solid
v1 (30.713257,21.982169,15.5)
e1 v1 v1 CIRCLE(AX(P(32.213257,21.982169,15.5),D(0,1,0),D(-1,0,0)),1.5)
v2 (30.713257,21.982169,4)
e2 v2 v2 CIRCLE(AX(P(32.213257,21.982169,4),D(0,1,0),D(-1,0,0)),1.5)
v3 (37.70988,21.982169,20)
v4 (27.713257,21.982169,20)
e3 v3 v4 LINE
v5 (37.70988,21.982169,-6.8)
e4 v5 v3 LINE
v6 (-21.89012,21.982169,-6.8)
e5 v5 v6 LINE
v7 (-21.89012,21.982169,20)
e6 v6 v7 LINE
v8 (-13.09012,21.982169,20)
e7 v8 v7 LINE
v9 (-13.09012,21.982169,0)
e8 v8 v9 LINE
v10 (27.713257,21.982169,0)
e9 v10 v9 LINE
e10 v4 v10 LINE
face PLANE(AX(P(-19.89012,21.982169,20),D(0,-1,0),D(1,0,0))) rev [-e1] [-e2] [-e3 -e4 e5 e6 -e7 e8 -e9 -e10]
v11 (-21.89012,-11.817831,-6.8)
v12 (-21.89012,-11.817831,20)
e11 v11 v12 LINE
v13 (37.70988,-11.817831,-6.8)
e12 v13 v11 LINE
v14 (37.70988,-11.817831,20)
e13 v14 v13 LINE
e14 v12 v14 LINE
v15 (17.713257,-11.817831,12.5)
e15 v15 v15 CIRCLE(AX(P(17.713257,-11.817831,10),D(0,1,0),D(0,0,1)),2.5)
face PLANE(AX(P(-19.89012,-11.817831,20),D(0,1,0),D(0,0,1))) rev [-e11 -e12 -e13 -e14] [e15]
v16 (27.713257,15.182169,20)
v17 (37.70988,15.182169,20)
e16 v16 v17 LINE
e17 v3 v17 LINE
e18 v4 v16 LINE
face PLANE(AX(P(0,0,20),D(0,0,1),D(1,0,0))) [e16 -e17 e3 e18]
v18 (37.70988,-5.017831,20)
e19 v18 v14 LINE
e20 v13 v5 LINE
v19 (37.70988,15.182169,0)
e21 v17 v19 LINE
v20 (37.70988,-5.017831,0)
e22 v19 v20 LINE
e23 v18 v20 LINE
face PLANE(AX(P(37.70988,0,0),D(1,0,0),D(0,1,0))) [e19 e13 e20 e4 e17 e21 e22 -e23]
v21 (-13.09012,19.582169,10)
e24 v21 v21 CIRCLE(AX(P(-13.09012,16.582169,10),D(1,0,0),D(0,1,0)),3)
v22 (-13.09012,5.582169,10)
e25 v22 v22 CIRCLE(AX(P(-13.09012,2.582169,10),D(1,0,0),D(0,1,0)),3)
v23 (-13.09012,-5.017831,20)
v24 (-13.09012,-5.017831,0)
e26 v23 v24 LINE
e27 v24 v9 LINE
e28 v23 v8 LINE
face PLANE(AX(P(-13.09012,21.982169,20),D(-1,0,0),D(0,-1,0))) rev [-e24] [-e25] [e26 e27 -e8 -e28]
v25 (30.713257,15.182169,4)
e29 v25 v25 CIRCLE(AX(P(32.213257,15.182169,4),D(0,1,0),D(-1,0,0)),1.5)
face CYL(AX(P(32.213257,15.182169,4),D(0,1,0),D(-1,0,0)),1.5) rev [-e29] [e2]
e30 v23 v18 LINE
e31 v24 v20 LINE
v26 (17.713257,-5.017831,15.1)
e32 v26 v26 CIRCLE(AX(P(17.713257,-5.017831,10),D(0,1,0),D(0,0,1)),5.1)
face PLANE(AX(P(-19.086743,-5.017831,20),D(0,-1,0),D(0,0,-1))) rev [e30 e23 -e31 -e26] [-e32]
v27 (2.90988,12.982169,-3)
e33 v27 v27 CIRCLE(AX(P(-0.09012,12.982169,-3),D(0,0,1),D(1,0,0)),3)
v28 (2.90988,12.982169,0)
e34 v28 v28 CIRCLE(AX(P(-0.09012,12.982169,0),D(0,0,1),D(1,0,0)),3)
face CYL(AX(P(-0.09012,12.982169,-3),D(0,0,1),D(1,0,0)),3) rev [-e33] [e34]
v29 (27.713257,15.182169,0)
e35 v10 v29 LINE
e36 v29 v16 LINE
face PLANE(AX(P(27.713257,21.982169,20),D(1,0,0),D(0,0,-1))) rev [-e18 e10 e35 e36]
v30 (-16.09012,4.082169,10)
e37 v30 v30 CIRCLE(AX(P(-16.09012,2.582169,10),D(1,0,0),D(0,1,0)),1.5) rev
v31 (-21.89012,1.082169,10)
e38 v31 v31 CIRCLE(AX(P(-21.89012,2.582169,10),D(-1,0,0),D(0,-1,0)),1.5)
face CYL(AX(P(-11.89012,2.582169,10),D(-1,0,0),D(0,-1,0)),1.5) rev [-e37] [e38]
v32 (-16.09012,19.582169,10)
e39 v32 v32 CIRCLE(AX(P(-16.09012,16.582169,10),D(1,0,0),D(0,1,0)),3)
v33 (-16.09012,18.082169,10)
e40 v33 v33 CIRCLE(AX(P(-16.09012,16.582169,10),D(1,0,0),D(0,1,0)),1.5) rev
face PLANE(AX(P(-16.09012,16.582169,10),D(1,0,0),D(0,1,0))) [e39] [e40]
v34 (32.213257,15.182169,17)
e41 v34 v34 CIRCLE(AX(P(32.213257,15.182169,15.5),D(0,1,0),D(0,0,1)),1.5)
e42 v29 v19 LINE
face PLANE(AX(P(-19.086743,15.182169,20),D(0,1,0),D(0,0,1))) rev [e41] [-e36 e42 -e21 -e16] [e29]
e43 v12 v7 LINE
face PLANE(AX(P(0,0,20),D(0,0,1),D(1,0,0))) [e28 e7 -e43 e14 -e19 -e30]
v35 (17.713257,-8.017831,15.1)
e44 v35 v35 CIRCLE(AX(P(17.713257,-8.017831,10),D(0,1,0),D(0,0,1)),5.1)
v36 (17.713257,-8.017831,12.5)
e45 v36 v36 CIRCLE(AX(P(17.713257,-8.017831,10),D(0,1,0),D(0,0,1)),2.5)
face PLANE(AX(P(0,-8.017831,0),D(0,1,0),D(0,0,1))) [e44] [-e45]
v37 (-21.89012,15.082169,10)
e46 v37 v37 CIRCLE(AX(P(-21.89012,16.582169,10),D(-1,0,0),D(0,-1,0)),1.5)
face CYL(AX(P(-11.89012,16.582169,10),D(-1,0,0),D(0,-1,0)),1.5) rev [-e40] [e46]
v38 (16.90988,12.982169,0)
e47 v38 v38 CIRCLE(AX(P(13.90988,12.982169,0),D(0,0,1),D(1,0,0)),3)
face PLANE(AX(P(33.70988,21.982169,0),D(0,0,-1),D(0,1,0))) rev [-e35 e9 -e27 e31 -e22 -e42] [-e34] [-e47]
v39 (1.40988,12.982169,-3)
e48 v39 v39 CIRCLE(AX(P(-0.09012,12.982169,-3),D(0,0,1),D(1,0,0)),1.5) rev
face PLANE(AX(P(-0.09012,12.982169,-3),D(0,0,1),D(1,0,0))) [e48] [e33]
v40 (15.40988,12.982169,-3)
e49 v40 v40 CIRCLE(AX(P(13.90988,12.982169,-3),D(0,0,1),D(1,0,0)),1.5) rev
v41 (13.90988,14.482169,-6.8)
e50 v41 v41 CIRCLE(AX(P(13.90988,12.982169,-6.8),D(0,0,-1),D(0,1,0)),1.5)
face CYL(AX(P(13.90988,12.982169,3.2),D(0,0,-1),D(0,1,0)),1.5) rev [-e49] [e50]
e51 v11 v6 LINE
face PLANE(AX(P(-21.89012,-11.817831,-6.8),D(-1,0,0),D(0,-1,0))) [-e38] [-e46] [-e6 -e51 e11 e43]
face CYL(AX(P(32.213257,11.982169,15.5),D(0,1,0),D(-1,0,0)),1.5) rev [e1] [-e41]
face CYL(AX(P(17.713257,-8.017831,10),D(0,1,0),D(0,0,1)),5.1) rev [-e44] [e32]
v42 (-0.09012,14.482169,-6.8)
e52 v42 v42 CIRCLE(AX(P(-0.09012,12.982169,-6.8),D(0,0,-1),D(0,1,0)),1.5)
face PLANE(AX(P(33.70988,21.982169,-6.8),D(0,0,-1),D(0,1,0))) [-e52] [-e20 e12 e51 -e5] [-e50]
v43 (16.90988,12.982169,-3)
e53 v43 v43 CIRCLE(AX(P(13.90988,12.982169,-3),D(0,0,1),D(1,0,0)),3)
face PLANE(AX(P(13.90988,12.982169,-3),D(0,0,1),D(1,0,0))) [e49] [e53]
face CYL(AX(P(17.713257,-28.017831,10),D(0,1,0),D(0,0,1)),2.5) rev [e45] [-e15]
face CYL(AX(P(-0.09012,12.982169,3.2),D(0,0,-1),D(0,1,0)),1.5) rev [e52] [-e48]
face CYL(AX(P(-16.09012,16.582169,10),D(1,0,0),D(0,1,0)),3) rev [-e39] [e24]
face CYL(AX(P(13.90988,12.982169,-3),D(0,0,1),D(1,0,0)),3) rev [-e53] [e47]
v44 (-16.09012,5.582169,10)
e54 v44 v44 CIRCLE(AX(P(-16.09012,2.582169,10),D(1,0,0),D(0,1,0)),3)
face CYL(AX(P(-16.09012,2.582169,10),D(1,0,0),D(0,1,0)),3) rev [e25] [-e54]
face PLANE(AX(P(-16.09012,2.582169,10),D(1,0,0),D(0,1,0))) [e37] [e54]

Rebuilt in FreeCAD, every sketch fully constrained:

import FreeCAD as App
import Part
import Sketcher
from FreeCAD import Vector

doc = App.newDocument("Part")
params = doc.addObject("Spreadsheet::Sheet", "Params")
for row, (alias, value) in enumerate([
    ("sketch1_width", "6.8 mm"),
    ("sketch1_height", "33.8 mm"),
    ("sketch1_height2", "26.85 mm"),
    ("pad1_length", "20 mm"),
    ("sketch2_width", "33.8 mm"),
    ("sketch2_height", "6.8 mm"),
    ("pad2_length", "53.6 mm"),
    ("sketch3_height", "20 mm"),
    ("sketch3_width", "20.2 mm"),
    ("pocket1_length", "53.6 mm"),
    ("sketch4_diameter", "10 mm"),
    ("pocket2_length", "3 mm"),
    ("sketch5_diameter", "5 mm"),
    ("pocket3_length", "20 mm"),
    ("sketch6_diameter", "2.2 mm"),
    ("pocket4_length", "20 mm"),
    ("sketch7_width", "2 mm"),
    ("sketch7_height", "26.8 mm"),
    ("pad3_length", "33.8 mm"),
    ("sketch8_diameter", "2.2 mm"),
    ("pocket5_length", "20 mm"),
    ("sketch9_width", "2 mm"),
    ("sketch9_height", "26.8 mm"),
    ("pad4_length", "33.8 mm"),
    ("sketch10_height", "20 mm"),
    ("sketch10_width", "20.2 mm"),
    ("pocket6_length", "60 mm"),
    ("sketch11_height", "20 mm"),
    ("sketch11_width", "20.2 mm"),
    ("pocket7_length", "60 mm"),
    ("sketch12_width", "8.8 mm"),
    ("sketch12_height", "20.2 mm"),
    ("pad5_length", "20 mm"),
    ("sketch13_diameter", "2.2 mm"),
    ("pad6_length", "13.6 mm"),
    ("sketch14_diameter", "2.2 mm"),
    ("pad7_length", "13.6 mm"),
    ("pad8_length", "6.8 mm"),
    ("sketch16_diameter", "2.2 mm"),
    ("pad9_length", "6.8 mm"),
    ("sketch17_diameter", "3 mm"),
    ("pocket8_length", "10 mm"),
    ("sketch18_diameter", "3 mm"),
    ("pocket9_length", "10 mm"),
    ("sketch19_diameter", "3 mm"),
    ("pocket10_length", "10 mm"),
    ("sketch20_diameter", "6 mm"),
    ("pocket11_length", "3 mm"),
    ("sketch21_diameter", "6 mm"),
    ("pocket12_length", "3 mm"),
    ("sketch22_diameter", "10.2 mm"),
    ("pocket13_length", "3 mm"),
    ("sketch23_height", "20 mm"),
    ("sketch23_width", "6.8 mm"),
    ("sketch23_width2", "20.2 mm"),
    ("sketch23_height2", "26.8 mm"),
    ("pad10_length", "2 mm"),
    ("sketch24_diameter", "5 mm"),
    ("pad11_length", "6.8 mm"),
    ("sketch25_diameter", "3 mm"),
    ("pocket14_length", "6.8 mm"),
], start=1):
    params.set(f"A{row}", alias)
    params.set(f"B{row}", "=" + value)
    params.setAlias(f"B{row}", alias)

body = doc.addObject("PartDesign::Body", "Body")

# Sketch on XY plane
sketch1 = doc.addObject("Sketcher::SketchObject", "Sketch")
body.addObject(sketch1)
sketch1.AttachmentSupport = (doc.XY_Plane, [""])
sketch1.MapMode = "FlatFace"
sketch1.addGeometry([
    Part.LineSegment(Vector(28, -5, 0), Vector(-13, -5, 0)),  # 0
    Part.LineSegment(Vector(-13, -5, 0), Vector(-13, 22, 0)),  # 1
    Part.LineSegment(Vector(-13, 22, 0), Vector(-20, 22, 0)),  # 2
    Part.LineSegment(Vector(-20, 22, 0), Vector(-20, -12, 0)),  # 3
    Part.LineSegment(Vector(-20, -12, 0), Vector(35, -12, 0)),  # 4
    Part.LineSegment(Vector(35, -12, 0), Vector(35, 22, 0)),  # 5
    Part.LineSegment(Vector(35, 22, 0), Vector(28, 22, 0)),  # 6
    Part.LineSegment(Vector(28, 22, 0), Vector(28, -5, 0)),  # 7
], False)
sketch1.addConstraint([
    Sketcher.Constraint("Coincident", 0, 2, 1, 1),
    Sketcher.Constraint("Coincident", 1, 2, 2, 1),
    Sketcher.Constraint("Coincident", 2, 2, 3, 1),
    Sketcher.Constraint("Coincident", 3, 2, 4, 1),
    Sketcher.Constraint("Coincident", 4, 2, 5, 1),
    Sketcher.Constraint("Coincident", 5, 2, 6, 1),
    Sketcher.Constraint("Coincident", 6, 2, 7, 1),
    Sketcher.Constraint("Coincident", 7, 2, 0, 1),
    Sketcher.Constraint("Horizontal", 0),
    Sketcher.Constraint("Vertical", 1),
    Sketcher.Constraint("Horizontal", 2),
    Sketcher.Constraint("Vertical", 3),
    Sketcher.Constraint("Horizontal", 4),
    Sketcher.Constraint("Vertical", 5),
    Sketcher.Constraint("Horizontal", 6),
    Sketcher.Constraint("Vertical", 7),
    Sketcher.Constraint("Horizontal", 2, 2, 5, 2),
    Sketcher.Constraint("Equal", 2, 6),
    Sketcher.Constraint("DistanceX", 2, 2, 2, 1, 6.8),
    Sketcher.Constraint("DistanceY", 3, 2, 3, 1, 33.8),
    Sketcher.Constraint("DistanceY", 1, 1, 1, 2, 26.85),
    Sketcher.Constraint("DistanceX", 0, 2, 0, 1, 40.803378),
    Sketcher.Constraint("DistanceX", 0, 2, -1, 1, 13.09012),
    Sketcher.Constraint("DistanceY", 0, 2, -1, 1, 4.867831),
])
sketch1.setExpression("Constraints[18]", "Params.sketch1_width")
sketch1.setExpression("Constraints[19]", "Params.sketch1_height")
sketch1.setExpression("Constraints[20]", "Params.sketch1_height2")
pad1 = doc.addObject("PartDesign::Pad", "Pad")
body.addObject(pad1)
pad1.Profile = sketch1
pad1.setExpression("Length", "Params.pad1_length")

# Sketch on YZ plane
sketch2 = doc.addObject("Sketcher::SketchObject", "Sketch001")
body.addObject(sketch2)
sketch2.AttachmentSupport = (doc.YZ_Plane, [""])
sketch2.MapMode = "FlatFace"
sketch2.AttachmentOffset = App.Placement(Vector(0, 0, -19.89012), App.Rotation())
sketch2.addGeometry([
    Part.LineSegment(Vector(22, -7, 0), Vector(-12, -7, 0)),
    Part.LineSegment(Vector(-12, -7, 0), Vector(-12, 0, 0)),
    Part.LineSegment(Vector(-12, 0, 0), Vector(22, 0, 0)),
    Part.LineSegment(Vector(22, 0, 0), Vector(22, -7, 0)),
], False)
sketch2.addConstraint([
    Sketcher.Constraint("Coincident", 0, 2, 1, 1),
    Sketcher.Constraint("Coincident", 1, 2, 2, 1),
    Sketcher.Constraint("Coincident", 2, 2, 3, 1),
    Sketcher.Constraint("Coincident", 3, 2, 0, 1),
    Sketcher.Constraint("Horizontal", 0),
    Sketcher.Constraint("Vertical", 1),
    Sketcher.Constraint("Horizontal", 2),
    Sketcher.Constraint("Vertical", 3),
    Sketcher.Constraint("PointOnObject", 1, 2, -1),
    Sketcher.Constraint("DistanceX", 0, 2, 0, 1, 33.8),
    Sketcher.Constraint("DistanceY", 1, 1, 1, 2, 6.8),
    Sketcher.Constraint("DistanceX", 0, 2, -1, 1, 11.817831),
])
sketch2.setExpression("Constraints[9]", "Params.sketch2_width")
sketch2.setExpression("Constraints[10]", "Params.sketch2_height")
pad2 = doc.addObject("PartDesign::Pad", "Pad001")
body.addObject(pad2)
pad2.Profile = sketch2
pad2.setExpression("Length", "Params.pad2_length")

# Sketch on YZ plane
sketch3 = doc.addObject("Sketcher::SketchObject", "Sketch002")
body.addObject(sketch3)
sketch3.AttachmentSupport = (doc.YZ_Plane, [""])
sketch3.MapMode = "FlatFace"
sketch3.AttachmentOffset = App.Placement(Vector(0, 0, 34.513257), App.Rotation())
sketch3.addGeometry([
    Part.LineSegment(Vector(15, 20, 0), Vector(-5, 20, 0)),
    Part.LineSegment(Vector(-5, 20, 0), Vector(-5, 0, 0)),
    Part.LineSegment(Vector(-5, 0, 0), Vector(15, 0, 0)),
    Part.LineSegment(Vector(15, 0, 0), Vector(15, 20, 0)),
], False)
sketch3.addConstraint([
    Sketcher.Constraint("Coincident", 0, 2, 1, 1),
    Sketcher.Constraint("Coincident", 1, 2, 2, 1),
    Sketcher.Constraint("Coincident", 2, 2, 3, 1),
    Sketcher.Constraint("Coincident", 3, 2, 0, 1),
    Sketcher.Constraint("Horizontal", 0),
    Sketcher.Constraint("Vertical", 1),
    Sketcher.Constraint("Horizontal", 2),
    Sketcher.Constraint("Vertical", 3),
    Sketcher.Constraint("PointOnObject", 1, 2, -1),
    Sketcher.Constraint("DistanceY", 1, 2, 1, 1, 20.0),
    Sketcher.Constraint("DistanceX", 0, 2, 0, 1, 20.2),
    Sketcher.Constraint("DistanceX", 0, 2, -1, 1, 5.017831),
])
sketch3.setExpression("Constraints[9]", "Params.sketch3_height")
sketch3.setExpression("Constraints[10]", "Params.sketch3_width")
pocket1 = doc.addObject("PartDesign::Pocket", "Pocket")
body.addObject(pocket1)
pocket1.Profile = sketch3
pocket1.setExpression("Length", "Params.pocket1_length")

# Sketch on XZ plane
sketch4 = doc.addObject("Sketcher::SketchObject", "Sketch003")
body.addObject(sketch4)
sketch4.AttachmentSupport = (doc.XZ_Plane, [""])
sketch4.MapMode = "FlatFace"
sketch4.AttachmentOffset = App.Placement(Vector(0, 0, 5.017831), App.Rotation())
sketch4.addGeometry(Part.Circle(Vector(18, 10, 0), Vector(0, 0, 1), 5), False)
sketch4.addConstraint([
    Sketcher.Constraint("Diameter", 0, 10.0),
    Sketcher.Constraint("DistanceY", -1, 1, 0, 3, 10.0),
    Sketcher.Constraint("DistanceX", -1, 1, 0, 3, 17.713257),
])
sketch4.setExpression("Constraints[0]", "Params.sketch4_diameter")
pocket2 = doc.addObject("PartDesign::Pocket", "Pocket001")
body.addObject(pocket2)
pocket2.Profile = sketch4
pocket2.setExpression("Length", "Params.pocket2_length")
pocket2.Reversed = True

# Sketch on XZ plane
sketch5 = doc.addObject("Sketcher::SketchObject", "Sketch004")
body.addObject(sketch5)
sketch5.AttachmentSupport = (doc.XZ_Plane, [""])
sketch5.MapMode = "FlatFace"
sketch5.AttachmentOffset = App.Placement(Vector(0, 0, 8.017831), App.Rotation())
sketch5.addGeometry(Part.Circle(Vector(17.7, 10, 0), Vector(0, 0, 1), 2.5), False)
sketch5.addConstraint([
    Sketcher.Constraint("Diameter", 0, 5.0),
    Sketcher.Constraint("DistanceY", -1, 1, 0, 3, 10.0),
    Sketcher.Constraint("DistanceX", -1, 1, 0, 3, 17.713257),
])
sketch5.setExpression("Constraints[0]", "Params.sketch5_diameter")
pocket3 = doc.addObject("PartDesign::Pocket", "Pocket002")
body.addObject(pocket3)
pocket3.Profile = sketch5
pocket3.setExpression("Length", "Params.pocket3_length")
pocket3.Reversed = True

# Sketch on XZ plane
sketch6 = doc.addObject("Sketcher::SketchObject", "Sketch005")
body.addObject(sketch6)
sketch6.AttachmentSupport = (doc.XZ_Plane, [""])
sketch6.MapMode = "FlatFace"
sketch6.AttachmentOffset = App.Placement(Vector(0, 0, -21.982169), App.Rotation())
sketch6.addGeometry([
    Part.Circle(Vector(32.5, 15.3, 0), Vector(0, 0, 1), 1.1),
    Part.Circle(Vector(31.7, 4.7, 0), Vector(0, 0, 1), 1.1),
], False)
sketch6.addConstraint([
    Sketcher.Constraint("Equal", 0, 1),
    Sketcher.Constraint("Diameter", 0, 2.2),
    Sketcher.Constraint("DistanceY", -1, 1, 0, 3, 15.3),
    Sketcher.Constraint("DistanceY", -1, 1, 1, 3, 4.7),
    Sketcher.Constraint("DistanceX", -1, 1, 1, 3, 31.70988),
    Sketcher.Constraint("DistanceX", -1, 1, 0, 3, 32.513257),
])
sketch6.setExpression("Constraints[1]", "Params.sketch6_diameter")
pocket4 = doc.addObject("PartDesign::Pocket", "Pocket003")
body.addObject(pocket4)
pocket4.Profile = sketch6
pocket4.setExpression("Length", "Params.pocket4_length")
pocket4.Reversed = True

# Sketch on XZ plane
sketch7 = doc.addObject("Sketcher::SketchObject", "Sketch006")
body.addObject(sketch7)
sketch7.AttachmentSupport = (doc.XZ_Plane, [""])
sketch7.MapMode = "FlatFace"
sketch7.AttachmentOffset = App.Placement(Vector(0, 0, -21.982169), App.Rotation())
sketch7.addGeometry([
    Part.LineSegment(Vector(33.7, -6.8, 0), Vector(33.7, 20, 0)),
    Part.LineSegment(Vector(33.7, 20, 0), Vector(35.7, 20, 0)),
    Part.LineSegment(Vector(35.7, 20, 0), Vector(35.7, -6.8, 0)),
    Part.LineSegment(Vector(35.7, -6.8, 0), Vector(33.7, -6.8, 0)),
], False)
sketch7.addConstraint([
    Sketcher.Constraint("Coincident", 0, 2, 1, 1),
    Sketcher.Constraint("Coincident", 1, 2, 2, 1),
    Sketcher.Constraint("Coincident", 2, 2, 3, 1),
    Sketcher.Constraint("Coincident", 3, 2, 0, 1),
    Sketcher.Constraint("Vertical", 0),
    Sketcher.Constraint("Horizontal", 1),
    Sketcher.Constraint("Vertical", 2),
    Sketcher.Constraint("Horizontal", 3),
    Sketcher.Constraint("DistanceX", 1, 1, 1, 2, 2.0),
    Sketcher.Constraint("DistanceY", 0, 1, 0, 2, 26.8),
    Sketcher.Constraint("DistanceY", -1, 1, 0, 2, 20.0),
    Sketcher.Constraint("DistanceX", -1, 1, 0, 2, 33.70988),
])
sketch7.setExpression("Constraints[8]", "Params.sketch7_width")
sketch7.setExpression("Constraints[9]", "Params.sketch7_height")
pad3 = doc.addObject("PartDesign::Pad", "Pad002")
body.addObject(pad3)
pad3.Profile = sketch7
pad3.setExpression("Length", "Params.pad3_length")

# Sketch on XZ plane
sketch8 = doc.addObject("Sketcher::SketchObject", "Sketch007")
body.addObject(sketch8)
sketch8.AttachmentSupport = (doc.XZ_Plane, [""])
sketch8.MapMode = "FlatFace"
sketch8.AttachmentOffset = App.Placement(Vector(0, 0, -21.982169), App.Rotation())
sketch8.addGeometry([
    Part.Circle(Vector(-17.9, 15.3, 0), Vector(0, 0, 1), 1.1),
    Part.Circle(Vector(-17.9, 4.7, 0), Vector(0, 0, 1), 1.1),
], False)
sketch8.addConstraint([
    Sketcher.Constraint("Equal", 0, 1),
    Sketcher.Constraint("Vertical", 0, 3, 1, 3),
    Sketcher.Constraint("Diameter", 0, 2.2),
    Sketcher.Constraint("DistanceY", -1, 1, 0, 3, 15.3),
    Sketcher.Constraint("DistanceY", -1, 1, 1, 3, 4.7),
    Sketcher.Constraint("DistanceX", 0, 3, -1, 1, 17.89012),
])
sketch8.setExpression("Constraints[2]", "Params.sketch8_diameter")
pocket5 = doc.addObject("PartDesign::Pocket", "Pocket004")
body.addObject(pocket5)
pocket5.Profile = sketch8
pocket5.setExpression("Length", "Params.pocket5_length")
pocket5.Reversed = True

# Sketch on XZ plane
sketch9 = doc.addObject("Sketcher::SketchObject", "Sketch008")
body.addObject(sketch9)
sketch9.AttachmentSupport = (doc.XZ_Plane, [""])
sketch9.MapMode = "FlatFace"
sketch9.AttachmentOffset = App.Placement(Vector(0, 0, -21.982169), App.Rotation())
sketch9.addGeometry([
    Part.LineSegment(Vector(-21.9, -6.8, 0), Vector(-21.9, 20, 0)),
    Part.LineSegment(Vector(-21.9, 20, 0), Vector(-19.9, 20, 0)),
    Part.LineSegment(Vector(-19.9, 20, 0), Vector(-19.9, -6.8, 0)),
    Part.LineSegment(Vector(-19.9, -6.8, 0), Vector(-21.9, -6.8, 0)),
], False)
sketch9.addConstraint([
    Sketcher.Constraint("Coincident", 0, 2, 1, 1),
    Sketcher.Constraint("Coincident", 1, 2, 2, 1),
    Sketcher.Constraint("Coincident", 2, 2, 3, 1),
    Sketcher.Constraint("Coincident", 3, 2, 0, 1),
    Sketcher.Constraint("Vertical", 0),
    Sketcher.Constraint("Horizontal", 1),
    Sketcher.Constraint("Vertical", 2),
    Sketcher.Constraint("Horizontal", 3),
    Sketcher.Constraint("DistanceX", 1, 1, 1, 2, 2.0),
    Sketcher.Constraint("DistanceY", 0, 1, 0, 2, 26.8),
    Sketcher.Constraint("DistanceY", -1, 1, 0, 2, 20.0),
    Sketcher.Constraint("DistanceX", 0, 2, -1, 1, 21.89012),
])
sketch9.setExpression("Constraints[8]", "Params.sketch9_width")
sketch9.setExpression("Constraints[9]", "Params.sketch9_height")
pad4 = doc.addObject("PartDesign::Pad", "Pad003")
body.addObject(pad4)
pad4.Profile = sketch9
pad4.setExpression("Length", "Params.pad4_length")

# Sketch on YZ plane
sketch10 = doc.addObject("Sketcher::SketchObject", "Sketch009")
body.addObject(sketch10)
sketch10.AttachmentSupport = (doc.YZ_Plane, [""])
sketch10.MapMode = "FlatFace"
sketch10.AttachmentOffset = App.Placement(Vector(0, 0, 33.70988), App.Rotation())
sketch10.addGeometry([
    Part.LineSegment(Vector(15, 0, 0), Vector(-5, 0, 0)),
    Part.LineSegment(Vector(-5, 0, 0), Vector(-5, 20, 0)),
    Part.LineSegment(Vector(-5, 20, 0), Vector(15, 20, 0)),
    Part.LineSegment(Vector(15, 20, 0), Vector(15, 0, 0)),
], False)
sketch10.addConstraint([
    Sketcher.Constraint("Coincident", 0, 2, 1, 1),
    Sketcher.Constraint("Coincident", 1, 2, 2, 1),
    Sketcher.Constraint("Coincident", 2, 2, 3, 1),
    Sketcher.Constraint("Coincident", 3, 2, 0, 1),
    Sketcher.Constraint("Horizontal", 0),
    Sketcher.Constraint("Vertical", 1),
    Sketcher.Constraint("Horizontal", 2),
    Sketcher.Constraint("Vertical", 3),
    Sketcher.Constraint("PointOnObject", 0, 2, -1),
    Sketcher.Constraint("DistanceY", 1, 1, 1, 2, 20.0),
    Sketcher.Constraint("DistanceX", 0, 2, 0, 1, 20.2),
    Sketcher.Constraint("DistanceX", 0, 2, -1, 1, 5.017831),
])
sketch10.setExpression("Constraints[9]", "Params.sketch10_height")
sketch10.setExpression("Constraints[10]", "Params.sketch10_width")
pocket6 = doc.addObject("PartDesign::Pocket", "Pocket005")
body.addObject(pocket6)
pocket6.Profile = sketch10
pocket6.setExpression("Length", "Params.pocket6_length")

# Sketch on YZ plane
sketch11 = doc.addObject("Sketcher::SketchObject", "Sketch010")
body.addObject(sketch11)
sketch11.AttachmentSupport = (doc.YZ_Plane, [""])
sketch11.MapMode = "FlatFace"
sketch11.AttachmentOffset = App.Placement(Vector(0, 0, 33.70988), App.Rotation())
sketch11.addGeometry([
    Part.LineSegment(Vector(15, 0, 0), Vector(-5, 0, 0)),
    Part.LineSegment(Vector(-5, 0, 0), Vector(-5, 20, 0)),
    Part.LineSegment(Vector(-5, 20, 0), Vector(15, 20, 0)),
    Part.LineSegment(Vector(15, 20, 0), Vector(15, 0, 0)),
], False)
sketch11.addConstraint([
    Sketcher.Constraint("Coincident", 0, 2, 1, 1),
    Sketcher.Constraint("Coincident", 1, 2, 2, 1),
    Sketcher.Constraint("Coincident", 2, 2, 3, 1),
    Sketcher.Constraint("Coincident", 3, 2, 0, 1),
    Sketcher.Constraint("Horizontal", 0),
    Sketcher.Constraint("Vertical", 1),
    Sketcher.Constraint("Horizontal", 2),
    Sketcher.Constraint("Vertical", 3),
    Sketcher.Constraint("PointOnObject", 0, 2, -1),
    Sketcher.Constraint("DistanceY", 1, 1, 1, 2, 20.0),
    Sketcher.Constraint("DistanceX", 0, 2, 0, 1, 20.2),
    Sketcher.Constraint("DistanceX", 0, 2, -1, 1, 5.017831),
])
sketch11.setExpression("Constraints[9]", "Params.sketch11_height")
sketch11.setExpression("Constraints[10]", "Params.sketch11_width")
pocket7 = doc.addObject("PartDesign::Pocket", "Pocket006")
body.addObject(pocket7)
pocket7.Profile = sketch11
pocket7.setExpression("Length", "Params.pocket7_length")
pocket7.Reversed = True

# Sketch on XY plane
sketch12 = doc.addObject("Sketcher::SketchObject", "Sketch011")
body.addObject(sketch12)
sketch12.AttachmentSupport = (doc.XY_Plane, [""])
sketch12.MapMode = "FlatFace"
sketch12.addGeometry([
    Part.LineSegment(Vector(-22, 15, 0), Vector(-22, -5, 0)),
    Part.LineSegment(Vector(-22, -5, 0), Vector(-13, -5, 0)),
    Part.LineSegment(Vector(-13, -5, 0), Vector(-13, 15, 0)),
    Part.LineSegment(Vector(-13, 15, 0), Vector(-22, 15, 0)),
], False)
sketch12.addConstraint([
    Sketcher.Constraint("Coincident", 0, 2, 1, 1),
    Sketcher.Constraint("Coincident", 1, 2, 2, 1),
    Sketcher.Constraint("Coincident", 2, 2, 3, 1),
    Sketcher.Constraint("Coincident", 3, 2, 0, 1),
    Sketcher.Constraint("Vertical", 0),
    Sketcher.Constraint("Horizontal", 1),
    Sketcher.Constraint("Vertical", 2),
    Sketcher.Constraint("Horizontal", 3),
    Sketcher.Constraint("DistanceX", 1, 1, 1, 2, 8.8),
    Sketcher.Constraint("DistanceY", 0, 2, 0, 1, 20.2),
    Sketcher.Constraint("DistanceX", 0, 2, -1, 1, 21.89012),
    Sketcher.Constraint("DistanceY", 0, 2, -1, 1, 5.017831),
])
sketch12.setExpression("Constraints[8]", "Params.sketch12_width")
sketch12.setExpression("Constraints[9]", "Params.sketch12_height")
pad5 = doc.addObject("PartDesign::Pad", "Pad004")
body.addObject(pad5)
pad5.Profile = sketch12
pad5.setExpression("Length", "Params.pad5_length")

# Sketch on XZ plane
sketch13 = doc.addObject("Sketcher::SketchObject", "Sketch012")
body.addObject(sketch13)
sketch13.AttachmentSupport = (doc.XZ_Plane, [""])
sketch13.MapMode = "FlatFace"
sketch13.AttachmentOffset = App.Placement(Vector(0, 0, -21.982169), App.Rotation())
sketch13.addGeometry(Part.Circle(Vector(-17.9, 4.7, 0), Vector(0, 0, 1), 1.1), False)
sketch13.addConstraint([
    Sketcher.Constraint("Diameter", 0, 2.2),
    Sketcher.Constraint("DistanceY", -1, 1, 0, 3, 4.7),
    Sketcher.Constraint("DistanceX", 0, 3, -1, 1, 17.89012),
])
sketch13.setExpression("Constraints[0]", "Params.sketch13_diameter")
pad6 = doc.addObject("PartDesign::Pad", "Pad005")
body.addObject(pad6)
pad6.Profile = sketch13
pad6.setExpression("Length", "Params.pad6_length")

# Sketch on XZ plane
sketch14 = doc.addObject("Sketcher::SketchObject", "Sketch013")
body.addObject(sketch14)
sketch14.AttachmentSupport = (doc.XZ_Plane, [""])
sketch14.MapMode = "FlatFace"
sketch14.AttachmentOffset = App.Placement(Vector(0, 0, -21.982169), App.Rotation())
sketch14.addGeometry(Part.Circle(Vector(-17.9, 15.3, 0), Vector(0, 0, 1), 1.1), False)
sketch14.addConstraint([
    Sketcher.Constraint("Diameter", 0, 2.2),
    Sketcher.Constraint("DistanceY", -1, 1, 0, 3, 15.3),
    Sketcher.Constraint("DistanceX", 0, 3, -1, 1, 17.89012),
])
sketch14.setExpression("Constraints[0]", "Params.sketch14_diameter")
pad7 = doc.addObject("PartDesign::Pad", "Pad006")
body.addObject(pad7)
pad7.Profile = sketch14
pad7.setExpression("Length", "Params.pad7_length")

# Sketch on XZ plane
sketch15 = doc.addObject("Sketcher::SketchObject", "Sketch014")
body.addObject(sketch15)
sketch15.AttachmentSupport = (doc.XZ_Plane, [""])
sketch15.MapMode = "FlatFace"
sketch15.AttachmentOffset = App.Placement(Vector(0, 0, -21.982169), App.Rotation())
sketch15.addGeometry(Part.Circle(Vector(32.5, 15.3, 0), Vector(0, 0, 1), 1.1), False)
sketch15.addConstraint([
    Sketcher.Constraint("DistanceY", -1, 1, 0, 3, 15.3),
    Sketcher.Constraint("Diameter", 0, 2.250348),
    Sketcher.Constraint("DistanceX", -1, 1, 0, 3, 32.513257),
])
pad8 = doc.addObject("PartDesign::Pad", "Pad007")
body.addObject(pad8)
pad8.Profile = sketch15
pad8.setExpression("Length", "Params.pad8_length")

# Sketch on XZ plane
sketch16 = doc.addObject("Sketcher::SketchObject", "Sketch015")
body.addObject(sketch16)
sketch16.AttachmentSupport = (doc.XZ_Plane, [""])
sketch16.MapMode = "FlatFace"
sketch16.AttachmentOffset = App.Placement(Vector(0, 0, -21.982169), App.Rotation())
sketch16.addGeometry([
    Part.Circle(Vector(29.7, 15.2, 0), Vector(0, 0, 1), 1.1),
    Part.Circle(Vector(31.7, 4.7, 0), Vector(0, 0, 1), 1.4),
], False)
sketch16.addConstraint([
    Sketcher.Constraint("Diameter", 0, 2.2),
    Sketcher.Constraint("DistanceY", -1, 1, 1, 3, 4.7),
    Sketcher.Constraint("Diameter", 1, 2.881796),
    Sketcher.Constraint("DistanceX", -1, 1, 1, 3, 31.70988),
    Sketcher.Constraint("DistanceX", -1, 1, 0, 3, 29.715206),
    Sketcher.Constraint("DistanceY", -1, 1, 0, 3, 15.150514),
])
sketch16.setExpression("Constraints[0]", "Params.sketch16_diameter")
pad9 = doc.addObject("PartDesign::Pad", "Pad008")
body.addObject(pad9)
pad9.Profile = sketch16
pad9.setExpression("Length", "Params.pad9_length")

# Sketch on XZ plane
sketch17 = doc.addObject("Sketcher::SketchObject", "Sketch016")
body.addObject(sketch17)
sketch17.AttachmentSupport = (doc.XZ_Plane, [""])
sketch17.MapMode = "FlatFace"
sketch17.AttachmentOffset = App.Placement(Vector(0, 0, -21.982169), App.Rotation())
sketch17.addGeometry([
    Part.Circle(Vector(32.2, 4.5, 0), Vector(0, 0, 1), 1.5),
    Part.Circle(Vector(32.2, 15.5, 0), Vector(0, 0, 1), 1.5),
], False)
sketch17.addConstraint([
    Sketcher.Constraint("Equal", 0, 1),
    Sketcher.Constraint("Vertical", 0, 3, 1, 3),
    Sketcher.Constraint("Diameter", 0, 3.0),
    Sketcher.Constraint("DistanceY", 0, 3, 1, 3, 11.0),
    Sketcher.Constraint("DistanceY", -1, 1, 0, 3, 4.5),
    Sketcher.Constraint("DistanceX", -1, 1, 0, 3, 32.213257),
])
sketch17.setExpression("Constraints[2]", "Params.sketch17_diameter")
pocket8 = doc.addObject("PartDesign::Pocket", "Pocket007")
body.addObject(pocket8)
pocket8.Profile = sketch17
pocket8.setExpression("Length", "Params.pocket8_length")
pocket8.Reversed = True

# Sketch on XY plane
sketch18 = doc.addObject("Sketcher::SketchObject", "Sketch017")
body.addObject(sketch18)
sketch18.AttachmentSupport = (doc.XY_Plane, [""])
sketch18.MapMode = "FlatFace"
sketch18.AttachmentOffset = App.Placement(Vector(0, 0, -6.8), App.Rotation())
sketch18.addGeometry([
    Part.Circle(Vector(13.9, 13, 0), Vector(0, 0, 1), 1.5),
    Part.Circle(Vector(-0.1, 13, 0), Vector(0, 0, 1), 1.5),
], False)
sketch18.addConstraint([
    Sketcher.Constraint("Equal", 0, 1),
    Sketcher.Constraint("Horizontal", 0, 3, 1, 3),
    Sketcher.Constraint("Diameter", 0, 3.0),
    Sketcher.Constraint("DistanceX", 1, 3, 0, 3, 14.0),
    Sketcher.Constraint("DistanceX", -1, 1, 0, 3, 13.90988),
    Sketcher.Constraint("DistanceY", -1, 1, 0, 3, 12.982169),
])
sketch18.setExpression("Constraints[2]", "Params.sketch18_diameter")
pocket9 = doc.addObject("PartDesign::Pocket", "Pocket008")
body.addObject(pocket9)
pocket9.Profile = sketch18
pocket9.setExpression("Length", "Params.pocket9_length")
pocket9.Reversed = True

# Sketch on YZ plane
sketch19 = doc.addObject("Sketcher::SketchObject", "Sketch018")
body.addObject(sketch19)
sketch19.AttachmentSupport = (doc.YZ_Plane, [""])
sketch19.MapMode = "FlatFace"
sketch19.AttachmentOffset = App.Placement(Vector(0, 0, -21.89012), App.Rotation())
sketch19.addGeometry([
    Part.Circle(Vector(2.6, 10, 0), Vector(0, 0, 1), 1.5),
    Part.Circle(Vector(16.6, 10, 0), Vector(0, 0, 1), 1.5),
], False)
sketch19.addConstraint([
    Sketcher.Constraint("Equal", 0, 1),
    Sketcher.Constraint("Horizontal", 0, 3, 1, 3),
    Sketcher.Constraint("Diameter", 0, 3.0),
    Sketcher.Constraint("DistanceY", -1, 1, 0, 3, 10.0),
    Sketcher.Constraint("DistanceX", 0, 3, 1, 3, 14.0),
    Sketcher.Constraint("DistanceX", -1, 1, 0, 3, 2.582169),
])
sketch19.setExpression("Constraints[2]", "Params.sketch19_diameter")
pocket10 = doc.addObject("PartDesign::Pocket", "Pocket009")
body.addObject(pocket10)
pocket10.Profile = sketch19
pocket10.setExpression("Length", "Params.pocket10_length")
pocket10.Reversed = True

# Sketch on YZ plane
sketch20 = doc.addObject("Sketcher::SketchObject", "Sketch019")
body.addObject(sketch20)
sketch20.AttachmentSupport = (doc.YZ_Plane, [""])
sketch20.MapMode = "FlatFace"
sketch20.AttachmentOffset = App.Placement(Vector(0, 0, -13.09012), App.Rotation())
sketch20.addGeometry([
    Part.Circle(Vector(2.6, 10, 0), Vector(0, 0, 1), 3),
    Part.Circle(Vector(16.6, 10, 0), Vector(0, 0, 1), 3),
], False)
sketch20.addConstraint([
    Sketcher.Constraint("Equal", 0, 1),
    Sketcher.Constraint("Horizontal", 0, 3, 1, 3),
    Sketcher.Constraint("Diameter", 0, 6.0),
    Sketcher.Constraint("DistanceY", -1, 1, 0, 3, 10.0),
    Sketcher.Constraint("DistanceX", 0, 3, 1, 3, 14.0),
    Sketcher.Constraint("DistanceX", -1, 1, 0, 3, 2.582169),
])
sketch20.setExpression("Constraints[2]", "Params.sketch20_diameter")
pocket11 = doc.addObject("PartDesign::Pocket", "Pocket010")
body.addObject(pocket11)
pocket11.Profile = sketch20
pocket11.setExpression("Length", "Params.pocket11_length")

# Sketch on XY plane
sketch21 = doc.addObject("Sketcher::SketchObject", "Sketch020")
body.addObject(sketch21)
sketch21.AttachmentSupport = (doc.XY_Plane, [""])
sketch21.MapMode = "FlatFace"
sketch21.addGeometry([
    Part.Circle(Vector(-0.1, 13, 0), Vector(0, 0, 1), 3),
    Part.Circle(Vector(13.9, 13, 0), Vector(0, 0, 1), 3),
], False)
sketch21.addConstraint([
    Sketcher.Constraint("Equal", 0, 1),
    Sketcher.Constraint("Horizontal", 0, 3, 1, 3),
    Sketcher.Constraint("Diameter", 0, 6.0),
    Sketcher.Constraint("DistanceX", 0, 3, 1, 3, 14.0),
    Sketcher.Constraint("DistanceX", 0, 3, -1, 1, 0.09012),
    Sketcher.Constraint("DistanceY", -1, 1, 0, 3, 12.982169),
])
sketch21.setExpression("Constraints[2]", "Params.sketch21_diameter")
pocket12 = doc.addObject("PartDesign::Pocket", "Pocket011")
body.addObject(pocket12)
pocket12.Profile = sketch21
pocket12.setExpression("Length", "Params.pocket12_length")

# Sketch on XZ plane
sketch22 = doc.addObject("Sketcher::SketchObject", "Sketch021")
body.addObject(sketch22)
sketch22.AttachmentSupport = (doc.XZ_Plane, [""])
sketch22.MapMode = "FlatFace"
sketch22.AttachmentOffset = App.Placement(Vector(0, 0, 5.017831), App.Rotation())
sketch22.addGeometry(Part.Circle(Vector(18, 10, 0), Vector(0, 0, 1), 5), False)
sketch22.addConstraint([
    Sketcher.Constraint("Diameter", 0, 10.2),
    Sketcher.Constraint("DistanceY", -1, 1, 0, 3, 10.0),
    Sketcher.Constraint("DistanceX", -1, 1, 0, 3, 17.713257),
])
sketch22.setExpression("Constraints[0]", "Params.sketch22_diameter")
pocket13 = doc.addObject("PartDesign::Pocket", "Pocket012")
body.addObject(pocket13)
pocket13.Profile = sketch22
pocket13.setExpression("Length", "Params.pocket13_length")
pocket13.Reversed = True

# Sketch on YZ plane
sketch23 = doc.addObject("Sketcher::SketchObject", "Sketch022")
body.addObject(sketch23)
sketch23.AttachmentSupport = (doc.YZ_Plane, [""])
sketch23.MapMode = "FlatFace"
sketch23.AttachmentOffset = App.Placement(Vector(0, 0, 35.70988), App.Rotation())
sketch23.addGeometry([
    Part.LineSegment(Vector(22, 20, 0), Vector(15, 20, 0)),  # 0
    Part.LineSegment(Vector(15, 20, 0), Vector(15, 0, 0)),  # 1
    Part.LineSegment(Vector(15, 0, 0), Vector(-5, 0, 0)),  # 2
    Part.LineSegment(Vector(-5, 0, 0), Vector(-5, 20, 0)),  # 3
    Part.LineSegment(Vector(-5, 20, 0), Vector(-12, 20, 0)),  # 4
    Part.LineSegment(Vector(-12, 20, 0), Vector(-12, -7, 0)),  # 5
    Part.LineSegment(Vector(-12, -7, 0), Vector(22, -7, 0)),  # 6
    Part.LineSegment(Vector(22, -7, 0), Vector(22, 20, 0)),  # 7
], False)
sketch23.addConstraint([
    Sketcher.Constraint("Coincident", 0, 2, 1, 1),
    Sketcher.Constraint("Coincident", 1, 2, 2, 1),
    Sketcher.Constraint("Coincident", 2, 2, 3, 1),
    Sketcher.Constraint("Coincident", 3, 2, 4, 1),
    Sketcher.Constraint("Coincident", 4, 2, 5, 1),
    Sketcher.Constraint("Coincident", 5, 2, 6, 1),
    Sketcher.Constraint("Coincident", 6, 2, 7, 1),
    Sketcher.Constraint("Coincident", 7, 2, 0, 1),
    Sketcher.Constraint("Horizontal", 0),
    Sketcher.Constraint("Vertical", 1),
    Sketcher.Constraint("Horizontal", 2),
    Sketcher.Constraint("Vertical", 3),
    Sketcher.Constraint("Horizontal", 4),
    Sketcher.Constraint("Vertical", 5),
    Sketcher.Constraint("Horizontal", 6),
    Sketcher.Constraint("Vertical", 7),
    Sketcher.Constraint("PointOnObject", 1, 2, -1),
    Sketcher.Constraint("Horizontal", 0, 2, 3, 2),
    Sketcher.Constraint("Equal", 0, 4),
    Sketcher.Constraint("DistanceY", 1, 2, 1, 1, 20.0),
    Sketcher.Constraint("DistanceX", 0, 2, 0, 1, 6.8),
    Sketcher.Constraint("DistanceX", 2, 2, 2, 1, 20.2),
    Sketcher.Constraint("DistanceY", 5, 2, 5, 1, 26.8),
    Sketcher.Constraint("DistanceX", -1, 1, 0, 2, 15.182169),
])
sketch23.setExpression("Constraints[19]", "Params.sketch23_height")
sketch23.setExpression("Constraints[20]", "Params.sketch23_width")
sketch23.setExpression("Constraints[21]", "Params.sketch23_width2")
sketch23.setExpression("Constraints[22]", "Params.sketch23_height2")
pad10 = doc.addObject("PartDesign::Pad", "Pad009")
body.addObject(pad10)
pad10.Profile = sketch23
pad10.setExpression("Length", "Params.pad10_length")

# Sketch on XZ plane
sketch24 = doc.addObject("Sketcher::SketchObject", "Sketch023")
body.addObject(sketch24)
sketch24.AttachmentSupport = (doc.XZ_Plane, [""])
sketch24.MapMode = "FlatFace"
sketch24.AttachmentOffset = App.Placement(Vector(0, 0, -21.982169), App.Rotation())
sketch24.addGeometry(Part.Circle(Vector(31.7, 4, 0), Vector(0, 0, 1), 2.5), False)
sketch24.addConstraint([
    Sketcher.Constraint("Diameter", 0, 5.0),
    Sketcher.Constraint("DistanceY", -1, 1, 0, 3, 4.0),
    Sketcher.Constraint("DistanceX", -1, 1, 0, 3, 31.713257),
])
sketch24.setExpression("Constraints[0]", "Params.sketch24_diameter")
pad11 = doc.addObject("PartDesign::Pad", "Pad010")
body.addObject(pad11)
pad11.Profile = sketch24
pad11.setExpression("Length", "Params.pad11_length")

# Sketch on XZ plane
sketch25 = doc.addObject("Sketcher::SketchObject", "Sketch024")
body.addObject(sketch25)
sketch25.AttachmentSupport = (doc.XZ_Plane, [""])
sketch25.MapMode = "FlatFace"
sketch25.AttachmentOffset = App.Placement(Vector(0, 0, -21.982169), App.Rotation())
sketch25.addGeometry(Part.Circle(Vector(32.2, 4, 0), Vector(0, 0, 1), 1.5), False)
sketch25.addConstraint([
    Sketcher.Constraint("Diameter", 0, 3.0),
    Sketcher.Constraint("DistanceY", -1, 1, 0, 3, 4.0),
    Sketcher.Constraint("DistanceX", -1, 1, 0, 3, 32.213257),
])
sketch25.setExpression("Constraints[0]", "Params.sketch25_diameter")
pocket14 = doc.addObject("PartDesign::Pocket", "Pocket013")
body.addObject(pocket14)
pocket14.Profile = sketch25
pocket14.setExpression("Length", "Params.pocket14_length")
pocket14.Reversed = True

doc.recompute()
